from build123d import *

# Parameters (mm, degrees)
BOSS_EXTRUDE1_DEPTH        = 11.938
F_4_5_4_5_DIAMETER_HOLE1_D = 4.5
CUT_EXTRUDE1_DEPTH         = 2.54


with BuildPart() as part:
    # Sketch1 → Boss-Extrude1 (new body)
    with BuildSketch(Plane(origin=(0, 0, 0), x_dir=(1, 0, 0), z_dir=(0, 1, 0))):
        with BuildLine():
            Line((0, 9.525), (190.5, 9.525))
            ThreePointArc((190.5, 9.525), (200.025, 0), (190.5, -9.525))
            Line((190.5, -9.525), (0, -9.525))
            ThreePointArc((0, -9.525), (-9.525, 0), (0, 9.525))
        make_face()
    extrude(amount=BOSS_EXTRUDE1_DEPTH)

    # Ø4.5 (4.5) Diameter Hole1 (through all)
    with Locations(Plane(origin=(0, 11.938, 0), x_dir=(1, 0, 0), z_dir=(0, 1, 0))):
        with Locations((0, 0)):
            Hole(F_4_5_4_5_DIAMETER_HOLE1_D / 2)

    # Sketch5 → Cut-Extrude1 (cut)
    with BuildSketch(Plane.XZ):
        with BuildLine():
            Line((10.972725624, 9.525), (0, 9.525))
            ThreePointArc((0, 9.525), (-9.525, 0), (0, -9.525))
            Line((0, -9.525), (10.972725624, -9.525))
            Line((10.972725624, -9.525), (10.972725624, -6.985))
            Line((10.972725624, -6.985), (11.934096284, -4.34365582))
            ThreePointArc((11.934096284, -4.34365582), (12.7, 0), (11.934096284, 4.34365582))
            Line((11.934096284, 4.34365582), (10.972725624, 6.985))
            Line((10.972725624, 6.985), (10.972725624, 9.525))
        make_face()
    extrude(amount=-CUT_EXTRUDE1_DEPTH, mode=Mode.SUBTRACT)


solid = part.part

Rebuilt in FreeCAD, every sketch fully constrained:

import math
import FreeCAD as App
import Part
import Sketcher
from FreeCAD import Vector
Q = App.Units.Quantity

doc = App.newDocument("Part")
body = doc.addObject("PartDesign::Body", "Body")

# Sketch on XZ plane
sketch1 = body.newObject("Sketcher::SketchObject", "Sketch")
sketch1.AttachmentSupport = (doc.getObject("XZ_Plane"), [""])
sketch1.MapMode = "FlatFace"
sketch1.addGeometry(Part.LineSegment(Vector(190, -10, 0), Vector(0, -10, 0)), False)
sketch1.addGeometry(Part.ArcOfCircle(Part.Circle(Vector(0, 0, 0), Vector(0, 0, 1), 10), math.radians(90), math.radians(270)), False)
sketch1.addGeometry(Part.LineSegment(Vector(0, 10, 0), Vector(190, 10, 0)), False)
sketch1.addGeometry(Part.ArcOfCircle(Part.Circle(Vector(190, 0, 0), Vector(0, 0, 1), 10), math.radians(-90), math.radians(90)), False)
sketch1.addConstraint(Sketcher.Constraint("Tangent", 0, 2, 1, 2))
sketch1.addConstraint(Sketcher.Constraint("Tangent", 1, 1, 2, 1))
sketch1.addConstraint(Sketcher.Constraint("Tangent", 2, 2, 3, 2))
sketch1.addConstraint(Sketcher.Constraint("Tangent", 3, 1, 0, 1))
sketch1.addConstraint(Sketcher.Constraint("Horizontal", 0))
sketch1.addConstraint(Sketcher.Constraint("Horizontal", 2))
sketch1.addConstraint(Sketcher.Constraint("Coincident", 1, 3, -1, 1))
sketch1.addConstraint(Sketcher.Constraint("DistanceX", 0, 2, 0, 1, Q("7.5 in")))
sketch1.addConstraint(Sketcher.Constraint("Radius", 1, Q("0.375 in")))
pad1 = body.newObject("PartDesign::Pad", "Pad")
pad1.Profile = sketch1
pad1.Length = Q("0.47 in")
pad1.Reversed = True

# Sketch on XZ plane
sketch2 = body.newObject("Sketcher::SketchObject", "Sketch001")
sketch2.AttachmentSupport = (doc.getObject("XZ_Plane"), [""])
sketch2.MapMode = "FlatFace"
sketch2.AttachmentOffset = App.Placement(Vector(0, 0, -0.47 * 25.4), App.Rotation())
sketch2.addGeometry(Part.Circle(Vector(0, 0, 0), Vector(0, 0, 1), 2.2), False)
sketch2.addConstraint(Sketcher.Constraint("Coincident", 0, 3, -1, 1))
sketch2.addConstraint(Sketcher.Constraint("Diameter", 0, Q("4.5 mm")))
doc.recompute()
hole = body.newObject("PartDesign::Hole", "Hole")
hole.Profile = sketch2
hole.ThreadType = "None"
hole.Diameter = 4.5
hole.DepthType = "ThroughAll"
hole.Reversed = True

# Sketch on XZ plane
sketch3 = body.newObject("Sketcher::SketchObject", "Sketch002")
sketch3.AttachmentSupport = (doc.getObject("XZ_Plane"), [""])
sketch3.MapMode = "FlatFace"
sketch3.addGeometry(Part.LineSegment(Vector(11, 9.5, 0), Vector(0, 9.5, 0)), False)
sketch3.addGeometry(Part.ArcOfCircle(Part.Circle(Vector(0, 0, 0), Vector(0, 0, 1), 9.5), math.radians(90), math.radians(270)), False)
sketch3.addGeometry(Part.LineSegment(Vector(0, -9.5, 0), Vector(11, -9.5, 0)), False)
sketch3.addGeometry(Part.LineSegment(Vector(11, -9.5, 0), Vector(11, -7, 0)), False)
sketch3.addGeometry(Part.LineSegment(Vector(11, -7, 0), Vector(11.9, -4.3, 0)), False)
sketch3.addGeometry(Part.ArcOfCircle(Part.Circle(Vector(0, 0, 0), Vector(0, 0, 1), 12.7), math.radians(-20), math.radians(20)), False)
sketch3.addGeometry(Part.LineSegment(Vector(11.9, 4.3, 0), Vector(11, 7, 0)), False)
sketch3.addGeometry(Part.LineSegment(Vector(11, 7, 0), Vector(11, 9.5, 0)), False)
sketch3.addConstraint(Sketcher.Constraint("Tangent", 0, 2, 1, 1))
sketch3.addConstraint(Sketcher.Constraint("Tangent", 1, 2, 2, 1))
sketch3.addConstraint(Sketcher.Constraint("Coincident", 2, 2, 3, 1))
sketch3.addConstraint(Sketcher.Constraint("Coincident", 3, 2, 4, 1))
sketch3.addConstraint(Sketcher.Constraint("Tangent", 4, 2, 5, 1))
sketch3.addConstraint(Sketcher.Constraint("Tangent", 5, 2, 6, 1))
sketch3.addConstraint(Sketcher.Constraint("Coincident", 6, 2, 7, 1))
sketch3.addConstraint(Sketcher.Constraint("Coincident", 7, 2, 0, 1))
sketch3.addConstraint(Sketcher.Constraint("Horizontal", 0))
sketch3.addConstraint(Sketcher.Constraint("Horizontal", 2))
sketch3.addConstraint(Sketcher.Constraint("Vertical", 3))
sketch3.addConstraint(Sketcher.Constraint("Vertical", 7))
sketch3.addConstraint(Sketcher.Constraint("Coincident", 1, 3, -1, 1))
sketch3.addConstraint(Sketcher.Constraint("Coincident", 5, 3, -1, 1))
sketch3.addConstraint(Sketcher.Constraint("Symmetric", 3, 2, 6, 2, -1))
sketch3.addConstraint(Sketcher.Constraint("Radius", 5, Q("0.5 in")))
sketch3.addConstraint(Sketcher.Constraint("DistanceY", 3, 1, 3, 2, Q("0.1 in")))
sketch3.addConstraint(Sketcher.Constraint("Angle", 4, Q("70 deg")))
sketch3.addConstraint(Sketcher.Constraint("Radius", 1, Q("0.375 in")))
pocket1 = body.newObject("PartDesign::Pocket", "Pocket")
pocket1.Profile = sketch3
pocket1.Length = Q("0.1 in")

doc.recompute()
